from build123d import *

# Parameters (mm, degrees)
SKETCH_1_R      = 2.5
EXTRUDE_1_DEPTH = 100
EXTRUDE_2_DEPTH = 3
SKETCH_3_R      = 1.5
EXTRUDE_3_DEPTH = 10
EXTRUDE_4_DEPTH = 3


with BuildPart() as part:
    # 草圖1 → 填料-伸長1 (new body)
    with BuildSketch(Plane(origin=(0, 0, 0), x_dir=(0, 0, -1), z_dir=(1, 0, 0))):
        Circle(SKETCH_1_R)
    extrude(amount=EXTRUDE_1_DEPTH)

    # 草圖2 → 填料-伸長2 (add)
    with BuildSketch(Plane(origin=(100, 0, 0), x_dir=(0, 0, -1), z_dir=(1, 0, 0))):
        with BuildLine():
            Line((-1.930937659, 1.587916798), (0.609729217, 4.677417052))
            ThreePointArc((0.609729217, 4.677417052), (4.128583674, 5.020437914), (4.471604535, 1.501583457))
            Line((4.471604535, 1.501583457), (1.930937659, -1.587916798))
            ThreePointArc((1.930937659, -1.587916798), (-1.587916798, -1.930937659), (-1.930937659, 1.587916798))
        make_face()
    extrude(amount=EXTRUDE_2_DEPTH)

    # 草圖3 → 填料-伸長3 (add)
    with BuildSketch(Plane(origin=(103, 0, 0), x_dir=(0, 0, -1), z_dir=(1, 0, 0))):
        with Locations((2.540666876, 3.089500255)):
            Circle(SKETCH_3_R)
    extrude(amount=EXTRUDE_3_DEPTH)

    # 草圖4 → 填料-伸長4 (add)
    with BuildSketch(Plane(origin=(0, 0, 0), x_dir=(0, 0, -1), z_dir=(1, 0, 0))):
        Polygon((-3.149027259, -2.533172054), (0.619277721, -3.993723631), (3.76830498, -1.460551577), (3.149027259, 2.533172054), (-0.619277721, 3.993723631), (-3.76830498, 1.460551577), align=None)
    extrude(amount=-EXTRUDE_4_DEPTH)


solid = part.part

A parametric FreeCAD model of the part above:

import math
import FreeCAD as App
import Part
import Sketcher
Q = App.Units.Quantity

doc = App.newDocument("Part")
body = doc.addObject("PartDesign::Body", "Body")

sketch1 = body.newObject("Sketcher::SketchObject", "Sketch")
sketch1.AttachmentSupport = (doc.getObject("YZ_Plane"), [""])
sketch1.MapMode = "FlatFace"
sketch1.addGeometry(Part.Circle(App.Vector(0, 0, 0), App.Vector(0, 0, 1), 2.5), False)
sketch1.addConstraint([
    Sketcher.Constraint("Coincident", 0, 3, -1, 1),
    Sketcher.Constraint("Diameter", 0, Q("5 mm")),
])
pad1 = body.newObject("PartDesign::Pad", "Pad")
pad1.Profile = sketch1
pad1.Length = 100

sketch2 = body.newObject("Sketcher::SketchObject", "Sketch001")
sketch2.AttachmentSupport = (doc.getObject("YZ_Plane"), [""])
sketch2.MapMode = "FlatFace"
sketch2.AttachmentOffset = App.Placement(App.Vector(0, 0, 100), App.Rotation())
sketch2.addGeometry([
    Part.LineSegment(App.Vector(4.7, -0.6, 0), App.Vector(1.6, 1.9, 0)),
    Part.ArcOfCircle(Part.Circle(App.Vector(0, 0, 0), App.Vector(0, 0, 1), 2.5), math.radians(51), math.radians(231)),
    Part.LineSegment(App.Vector(-1.6, -1.9, 0), App.Vector(1.5, -4.5, 0)),
    Part.ArcOfCircle(Part.Circle(App.Vector(3.1, -2.5, 0), App.Vector(0, 0, 1), 2.5), math.radians(-129), math.radians(51)),
], False)
sketch2.addConstraint([
    Sketcher.Constraint("Tangent", 0, 2, 1, 1),
    Sketcher.Constraint("Tangent", 1, 2, 2, 1),
    Sketcher.Constraint("Tangent", 2, 2, 3, 1),
    Sketcher.Constraint("Tangent", 3, 2, 0, 1),
    Sketcher.Constraint("Coincident", 1, 3, -1, 1),
    Sketcher.Constraint("Equal", 1, 3),
    Sketcher.Constraint("Radius", 1, Q("2.5 mm")),
    Sketcher.Constraint("Distance", 0, Q("4 mm")),
    Sketcher.Constraint("DistanceX", -1, 1, 3, 3, Q("3.0895 mm")),
])
pad2 = body.newObject("PartDesign::Pad", "Pad001")
pad2.Profile = sketch2
pad2.Length = 3

sketch3 = body.newObject("Sketcher::SketchObject", "Sketch002")
sketch3.AttachmentSupport = (doc.getObject("YZ_Plane"), [""])
sketch3.MapMode = "FlatFace"
sketch3.AttachmentOffset = App.Placement(App.Vector(0, 0, 103), App.Rotation())
sketch3.addGeometry(Part.Circle(App.Vector(3.1, -2.5, 0), App.Vector(0, 0, 1), 1.5), False)
sketch3.addConstraint([
    Sketcher.Constraint("Diameter", 0, Q("3 mm")),
    Sketcher.Constraint("DistanceX", -1, 1, 0, 3, Q("3.0895 mm")),
    Sketcher.Constraint("DistanceY", 0, 3, -1, 1, Q("2.540667 mm")),
])
pad3 = body.newObject("PartDesign::Pad", "Pad002")
pad3.Profile = sketch3
pad3.Length = 10

sketch4 = body.newObject("Sketcher::SketchObject", "Sketch003")
sketch4.AttachmentSupport = (doc.getObject("YZ_Plane"), [""])
sketch4.MapMode = "FlatFace"
sketch4.addGeometry([
    Part.LineSegment(App.Vector(-2.5, 3.1, 0), App.Vector(-4, -0.6, 0)),
    Part.LineSegment(App.Vector(-4, -0.6, 0), App.Vector(-1.5, -3.8, 0)),
    Part.LineSegment(App.Vector(-1.5, -3.8, 0), App.Vector(2.5, -3.1, 0)),
    Part.LineSegment(App.Vector(2.5, -3.1, 0), App.Vector(4, 0.6, 0)),
    Part.LineSegment(App.Vector(4, 0.6, 0), App.Vector(1.5, 3.8, 0)),
    Part.LineSegment(App.Vector(1.5, 3.8, 0), App.Vector(-2.5, 3.1, 0)),
], False)
sketch4.addConstraint([
    Sketcher.Constraint("Coincident", 0, 2, 1, 1),
    Sketcher.Constraint("Coincident", 1, 2, 2, 1),
    Sketcher.Constraint("Coincident", 2, 2, 3, 1),
    Sketcher.Constraint("Coincident", 3, 2, 4, 1),
    Sketcher.Constraint("Coincident", 4, 2, 5, 1),
    Sketcher.Constraint("Coincident", 5, 2, 0, 1),
    Sketcher.Constraint("Symmetric", 0, 2, 3, 2, -1, 1),
    Sketcher.Constraint("Symmetric", 1, 2, 4, 2, -1, 1),
    Sketcher.Constraint("Symmetric", 2, 2, 5, 2, -1, 1),
    Sketcher.Constraint("Equal", 0, 1),
    Sketcher.Constraint("Equal", 1, 2),
    Sketcher.Constraint("Distance", 0, Q("4.041452 mm")),
    Sketcher.Constraint("DistanceX", 1, 2, -1, 1, Q("1.460552 mm")),
    Sketcher.Constraint("DistanceY", 2, 2, 0, 2, Q("2.52975 mm")),
    Sketcher.Constraint("DistanceX", 2, 2, 3, 2, Q("1.460552 mm")),
])
pad4 = body.newObject("PartDesign::Pad", "Pad003")
pad4.Profile = sketch4
pad4.Length = 3
pad4.Reversed = True

doc.recompute()
